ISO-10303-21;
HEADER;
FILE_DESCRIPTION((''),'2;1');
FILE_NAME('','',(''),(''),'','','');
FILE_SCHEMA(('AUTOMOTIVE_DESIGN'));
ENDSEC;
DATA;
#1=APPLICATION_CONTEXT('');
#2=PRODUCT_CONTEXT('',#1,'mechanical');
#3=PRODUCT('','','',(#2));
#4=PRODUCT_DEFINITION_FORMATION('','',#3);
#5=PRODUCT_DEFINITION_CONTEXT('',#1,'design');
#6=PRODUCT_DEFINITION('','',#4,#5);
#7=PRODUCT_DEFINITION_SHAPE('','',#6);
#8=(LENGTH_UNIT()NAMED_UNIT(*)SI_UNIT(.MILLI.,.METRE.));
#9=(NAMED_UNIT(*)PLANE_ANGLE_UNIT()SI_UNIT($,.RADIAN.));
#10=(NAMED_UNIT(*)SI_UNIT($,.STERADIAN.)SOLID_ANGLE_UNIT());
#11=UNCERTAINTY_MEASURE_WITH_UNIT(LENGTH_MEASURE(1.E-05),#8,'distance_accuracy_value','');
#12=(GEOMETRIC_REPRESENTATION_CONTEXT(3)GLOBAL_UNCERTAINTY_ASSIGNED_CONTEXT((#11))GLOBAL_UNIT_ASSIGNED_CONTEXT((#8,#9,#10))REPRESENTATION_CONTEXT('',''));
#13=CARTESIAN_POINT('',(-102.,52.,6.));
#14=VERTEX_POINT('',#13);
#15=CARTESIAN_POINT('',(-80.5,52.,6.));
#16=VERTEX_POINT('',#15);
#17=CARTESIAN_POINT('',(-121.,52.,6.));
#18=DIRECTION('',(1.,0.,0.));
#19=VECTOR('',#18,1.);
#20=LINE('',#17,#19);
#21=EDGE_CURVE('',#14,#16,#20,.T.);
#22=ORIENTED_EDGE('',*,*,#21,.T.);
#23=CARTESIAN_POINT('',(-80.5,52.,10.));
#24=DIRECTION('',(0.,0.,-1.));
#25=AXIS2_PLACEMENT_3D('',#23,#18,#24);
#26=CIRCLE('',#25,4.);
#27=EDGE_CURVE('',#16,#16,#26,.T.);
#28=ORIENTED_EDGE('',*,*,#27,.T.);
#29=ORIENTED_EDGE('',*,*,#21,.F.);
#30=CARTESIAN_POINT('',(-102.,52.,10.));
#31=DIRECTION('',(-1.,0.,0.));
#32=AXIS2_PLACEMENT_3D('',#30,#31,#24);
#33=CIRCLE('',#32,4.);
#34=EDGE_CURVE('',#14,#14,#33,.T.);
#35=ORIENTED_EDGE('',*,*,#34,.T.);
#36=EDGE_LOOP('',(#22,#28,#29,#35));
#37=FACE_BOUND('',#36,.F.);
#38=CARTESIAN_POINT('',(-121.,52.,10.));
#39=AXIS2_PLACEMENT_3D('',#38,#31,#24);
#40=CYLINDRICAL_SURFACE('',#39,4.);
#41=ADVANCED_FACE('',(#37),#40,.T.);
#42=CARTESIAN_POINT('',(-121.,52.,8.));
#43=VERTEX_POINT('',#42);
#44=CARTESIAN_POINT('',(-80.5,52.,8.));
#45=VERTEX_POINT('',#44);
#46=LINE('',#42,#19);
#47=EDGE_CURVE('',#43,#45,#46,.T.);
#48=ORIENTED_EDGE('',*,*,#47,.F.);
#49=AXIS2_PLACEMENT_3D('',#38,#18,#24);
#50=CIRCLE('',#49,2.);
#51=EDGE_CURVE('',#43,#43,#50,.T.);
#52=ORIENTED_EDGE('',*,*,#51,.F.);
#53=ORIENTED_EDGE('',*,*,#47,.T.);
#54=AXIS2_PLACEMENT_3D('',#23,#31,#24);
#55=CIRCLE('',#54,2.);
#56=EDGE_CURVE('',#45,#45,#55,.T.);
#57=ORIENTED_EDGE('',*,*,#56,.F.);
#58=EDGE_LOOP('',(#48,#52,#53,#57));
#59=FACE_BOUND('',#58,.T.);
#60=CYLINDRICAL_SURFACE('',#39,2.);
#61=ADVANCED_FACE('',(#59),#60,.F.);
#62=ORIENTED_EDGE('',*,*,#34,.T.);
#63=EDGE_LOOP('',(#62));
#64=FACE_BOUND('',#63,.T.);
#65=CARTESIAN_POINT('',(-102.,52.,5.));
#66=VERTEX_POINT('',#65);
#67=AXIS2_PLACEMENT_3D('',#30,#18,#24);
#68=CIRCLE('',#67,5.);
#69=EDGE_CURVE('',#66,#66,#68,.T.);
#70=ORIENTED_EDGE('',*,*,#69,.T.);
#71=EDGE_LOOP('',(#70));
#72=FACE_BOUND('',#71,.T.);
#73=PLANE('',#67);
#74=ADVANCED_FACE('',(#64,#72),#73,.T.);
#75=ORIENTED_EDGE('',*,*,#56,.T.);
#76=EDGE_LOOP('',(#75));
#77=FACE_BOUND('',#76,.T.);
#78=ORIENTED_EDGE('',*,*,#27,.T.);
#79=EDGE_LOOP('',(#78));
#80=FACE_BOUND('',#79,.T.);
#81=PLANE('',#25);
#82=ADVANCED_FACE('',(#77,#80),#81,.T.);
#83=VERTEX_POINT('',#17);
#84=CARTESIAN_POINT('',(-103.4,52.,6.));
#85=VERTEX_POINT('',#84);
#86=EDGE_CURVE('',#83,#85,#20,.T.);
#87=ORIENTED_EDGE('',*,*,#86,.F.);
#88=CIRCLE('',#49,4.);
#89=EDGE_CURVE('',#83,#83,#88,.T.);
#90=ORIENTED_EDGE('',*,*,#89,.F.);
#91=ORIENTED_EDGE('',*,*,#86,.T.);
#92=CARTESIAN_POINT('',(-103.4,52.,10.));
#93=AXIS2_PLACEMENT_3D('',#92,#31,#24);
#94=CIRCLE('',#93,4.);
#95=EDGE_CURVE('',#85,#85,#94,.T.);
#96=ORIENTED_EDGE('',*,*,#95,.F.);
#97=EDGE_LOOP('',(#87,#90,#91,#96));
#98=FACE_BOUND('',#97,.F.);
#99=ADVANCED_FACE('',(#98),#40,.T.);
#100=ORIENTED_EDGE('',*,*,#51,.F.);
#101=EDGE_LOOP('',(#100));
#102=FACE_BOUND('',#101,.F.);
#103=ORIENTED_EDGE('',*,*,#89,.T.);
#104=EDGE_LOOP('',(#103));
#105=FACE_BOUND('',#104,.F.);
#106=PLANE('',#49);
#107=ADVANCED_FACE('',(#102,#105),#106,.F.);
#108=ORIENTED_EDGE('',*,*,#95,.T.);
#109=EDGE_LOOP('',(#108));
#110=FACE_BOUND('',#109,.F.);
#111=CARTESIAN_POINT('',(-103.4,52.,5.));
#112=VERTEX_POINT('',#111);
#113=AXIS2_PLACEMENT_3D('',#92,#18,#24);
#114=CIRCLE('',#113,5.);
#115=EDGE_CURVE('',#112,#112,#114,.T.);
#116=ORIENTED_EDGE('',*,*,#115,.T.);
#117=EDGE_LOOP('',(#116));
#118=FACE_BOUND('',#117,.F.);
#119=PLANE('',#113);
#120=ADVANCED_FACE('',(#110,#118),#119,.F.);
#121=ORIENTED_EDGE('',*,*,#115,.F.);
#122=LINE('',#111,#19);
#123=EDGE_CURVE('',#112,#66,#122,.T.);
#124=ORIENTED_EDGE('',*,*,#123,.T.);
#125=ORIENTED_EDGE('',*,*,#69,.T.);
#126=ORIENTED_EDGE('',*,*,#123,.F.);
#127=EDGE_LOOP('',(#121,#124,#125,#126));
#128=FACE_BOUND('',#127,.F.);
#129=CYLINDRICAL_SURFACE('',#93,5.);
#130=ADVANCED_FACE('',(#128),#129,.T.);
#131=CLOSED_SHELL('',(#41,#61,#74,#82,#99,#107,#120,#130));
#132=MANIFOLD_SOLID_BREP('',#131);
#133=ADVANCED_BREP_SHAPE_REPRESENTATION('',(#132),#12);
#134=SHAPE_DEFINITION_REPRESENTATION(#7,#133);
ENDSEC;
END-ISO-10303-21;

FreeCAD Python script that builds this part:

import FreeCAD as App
import Part
import Sketcher

V = App.Vector
Q = App.Units.Quantity

doc = App.newDocument("Part")
params = doc.addObject("Spreadsheet::Sheet", "Params")
for row, (alias, value) in enumerate([
    ("sketch1_diameter", "4 mm"),
    ("pad1_length", "47.8 mm"),
    ("sketch2_diameter", "10 mm"),
    ("pad2_length", "1.4 mm"),
    ("sketch3_diameter", "8 mm"),
    ("pad3_length", "40.5 mm"),
], start=1):
    params.set(f"A{row}", alias)
    params.set(f"B{row}", "=" + value)
    params.setAlias(f"B{row}", alias)

body = doc.addObject("PartDesign::Body", "Body")

sketch1 = doc.addObject("Sketcher::SketchObject", "Sketch")
body.addObject(sketch1)
sketch1.AttachmentSupport = (doc.YZ_Plane, [""])
sketch1.MapMode = "FlatFace"
sketch1.AttachmentOffset = App.Placement(V(0, 0, -125), App.Rotation())
sketch1.addGeometry(Part.Circle(V(62, 10, 0), V(0, 0, 1), 2), False)
sketch1.addConstraint(Sketcher.Constraint("Diameter", 0, Q("4 mm")))
sketch1.addConstraint(Sketcher.Constraint("DistanceX", -1, 1, 0, 3, Q("62 mm")))
sketch1.addConstraint(Sketcher.Constraint("DistanceY", -1, 1, 0, 3, Q("10 mm")))
sketch1.setExpression("Constraints[0]", "Params.sketch1_diameter")
pad1 = doc.addObject("PartDesign::Pad", "Pad")
body.addObject(pad1)
pad1.Profile = sketch1
pad1.setExpression("Length", "Params.pad1_length")
body2 = doc.addObject("PartDesign::Body", "Body001")

sketch2 = doc.addObject("Sketcher::SketchObject", "Sketch001")
body2.addObject(sketch2)
sketch2.AttachmentSupport = (doc.getObject("YZ_Plane001"), [""])
sketch2.MapMode = "FlatFace"
sketch2.AttachmentOffset = App.Placement(V(0, 0, -107.4), App.Rotation())
sketch2.addGeometry(Part.Circle(V(62, 10, 0), V(0, 0, 1), 5), False)
sketch2.addConstraint(Sketcher.Constraint("Diameter", 0, Q("10 mm")))
sketch2.addConstraint(Sketcher.Constraint("DistanceX", -1, 1, 0, 3, Q("62 mm")))
sketch2.addConstraint(Sketcher.Constraint("DistanceY", -1, 1, 0, 3, Q("10 mm")))
sketch2.setExpression("Constraints[0]", "Params.sketch2_diameter")
pad2 = doc.addObject("PartDesign::Pad", "Pad001")
body2.addObject(pad2)
pad2.Profile = sketch2
pad2.setExpression("Length", "Params.pad2_length")
body3 = doc.addObject("PartDesign::Body", "Body002")

sketch3 = doc.addObject("Sketcher::SketchObject", "Sketch002")
body3.addObject(sketch3)
sketch3.AttachmentSupport = (doc.getObject("YZ_Plane002"), [""])
sketch3.MapMode = "FlatFace"
sketch3.AttachmentOffset = App.Placement(V(0, 0, -125), App.Rotation())
sketch3.addGeometry(Part.Circle(V(62, 10, 0), V(0, 0, 1), 4), False)
sketch3.addConstraint(Sketcher.Constraint("Diameter", 0, Q("8 mm")))
sketch3.addConstraint(Sketcher.Constraint("DistanceX", -1, 1, 0, 3, Q("62 mm")))
sketch3.addConstraint(Sketcher.Constraint("DistanceY", -1, 1, 0, 3, Q("10 mm")))
sketch3.setExpression("Constraints[0]", "Params.sketch3_diameter")
pad3 = doc.addObject("PartDesign::Pad", "Pad002")
body3.addObject(pad3)
pad3.Profile = sketch3
pad3.setExpression("Length", "Params.pad3_length")
doc.recompute()

boolean = doc.addObject("PartDesign::Boolean", "Boolean")
body3.addObject(boolean)
boolean.Type = "Fuse"
boolean.addObjects([body2])
doc.recompute()

boolean2 = doc.addObject("PartDesign::Boolean", "Boolean001")
body3.addObject(boolean2)
boolean2.Type = "Cut"
boolean2.addObjects([body])
body4 = doc.addObject("PartDesign::Body", "Body003")
doc.recompute()

body3.Placement = App.Placement(V(4, -10, 0), App.Rotation(V(0, 0, 1), 0))
boolean3 = doc.addObject("PartDesign::Boolean", "Boolean002")
body4.addObject(boolean3)
boolean3.Type = "Fuse"
boolean3.addObjects([body3])

doc.recompute()
